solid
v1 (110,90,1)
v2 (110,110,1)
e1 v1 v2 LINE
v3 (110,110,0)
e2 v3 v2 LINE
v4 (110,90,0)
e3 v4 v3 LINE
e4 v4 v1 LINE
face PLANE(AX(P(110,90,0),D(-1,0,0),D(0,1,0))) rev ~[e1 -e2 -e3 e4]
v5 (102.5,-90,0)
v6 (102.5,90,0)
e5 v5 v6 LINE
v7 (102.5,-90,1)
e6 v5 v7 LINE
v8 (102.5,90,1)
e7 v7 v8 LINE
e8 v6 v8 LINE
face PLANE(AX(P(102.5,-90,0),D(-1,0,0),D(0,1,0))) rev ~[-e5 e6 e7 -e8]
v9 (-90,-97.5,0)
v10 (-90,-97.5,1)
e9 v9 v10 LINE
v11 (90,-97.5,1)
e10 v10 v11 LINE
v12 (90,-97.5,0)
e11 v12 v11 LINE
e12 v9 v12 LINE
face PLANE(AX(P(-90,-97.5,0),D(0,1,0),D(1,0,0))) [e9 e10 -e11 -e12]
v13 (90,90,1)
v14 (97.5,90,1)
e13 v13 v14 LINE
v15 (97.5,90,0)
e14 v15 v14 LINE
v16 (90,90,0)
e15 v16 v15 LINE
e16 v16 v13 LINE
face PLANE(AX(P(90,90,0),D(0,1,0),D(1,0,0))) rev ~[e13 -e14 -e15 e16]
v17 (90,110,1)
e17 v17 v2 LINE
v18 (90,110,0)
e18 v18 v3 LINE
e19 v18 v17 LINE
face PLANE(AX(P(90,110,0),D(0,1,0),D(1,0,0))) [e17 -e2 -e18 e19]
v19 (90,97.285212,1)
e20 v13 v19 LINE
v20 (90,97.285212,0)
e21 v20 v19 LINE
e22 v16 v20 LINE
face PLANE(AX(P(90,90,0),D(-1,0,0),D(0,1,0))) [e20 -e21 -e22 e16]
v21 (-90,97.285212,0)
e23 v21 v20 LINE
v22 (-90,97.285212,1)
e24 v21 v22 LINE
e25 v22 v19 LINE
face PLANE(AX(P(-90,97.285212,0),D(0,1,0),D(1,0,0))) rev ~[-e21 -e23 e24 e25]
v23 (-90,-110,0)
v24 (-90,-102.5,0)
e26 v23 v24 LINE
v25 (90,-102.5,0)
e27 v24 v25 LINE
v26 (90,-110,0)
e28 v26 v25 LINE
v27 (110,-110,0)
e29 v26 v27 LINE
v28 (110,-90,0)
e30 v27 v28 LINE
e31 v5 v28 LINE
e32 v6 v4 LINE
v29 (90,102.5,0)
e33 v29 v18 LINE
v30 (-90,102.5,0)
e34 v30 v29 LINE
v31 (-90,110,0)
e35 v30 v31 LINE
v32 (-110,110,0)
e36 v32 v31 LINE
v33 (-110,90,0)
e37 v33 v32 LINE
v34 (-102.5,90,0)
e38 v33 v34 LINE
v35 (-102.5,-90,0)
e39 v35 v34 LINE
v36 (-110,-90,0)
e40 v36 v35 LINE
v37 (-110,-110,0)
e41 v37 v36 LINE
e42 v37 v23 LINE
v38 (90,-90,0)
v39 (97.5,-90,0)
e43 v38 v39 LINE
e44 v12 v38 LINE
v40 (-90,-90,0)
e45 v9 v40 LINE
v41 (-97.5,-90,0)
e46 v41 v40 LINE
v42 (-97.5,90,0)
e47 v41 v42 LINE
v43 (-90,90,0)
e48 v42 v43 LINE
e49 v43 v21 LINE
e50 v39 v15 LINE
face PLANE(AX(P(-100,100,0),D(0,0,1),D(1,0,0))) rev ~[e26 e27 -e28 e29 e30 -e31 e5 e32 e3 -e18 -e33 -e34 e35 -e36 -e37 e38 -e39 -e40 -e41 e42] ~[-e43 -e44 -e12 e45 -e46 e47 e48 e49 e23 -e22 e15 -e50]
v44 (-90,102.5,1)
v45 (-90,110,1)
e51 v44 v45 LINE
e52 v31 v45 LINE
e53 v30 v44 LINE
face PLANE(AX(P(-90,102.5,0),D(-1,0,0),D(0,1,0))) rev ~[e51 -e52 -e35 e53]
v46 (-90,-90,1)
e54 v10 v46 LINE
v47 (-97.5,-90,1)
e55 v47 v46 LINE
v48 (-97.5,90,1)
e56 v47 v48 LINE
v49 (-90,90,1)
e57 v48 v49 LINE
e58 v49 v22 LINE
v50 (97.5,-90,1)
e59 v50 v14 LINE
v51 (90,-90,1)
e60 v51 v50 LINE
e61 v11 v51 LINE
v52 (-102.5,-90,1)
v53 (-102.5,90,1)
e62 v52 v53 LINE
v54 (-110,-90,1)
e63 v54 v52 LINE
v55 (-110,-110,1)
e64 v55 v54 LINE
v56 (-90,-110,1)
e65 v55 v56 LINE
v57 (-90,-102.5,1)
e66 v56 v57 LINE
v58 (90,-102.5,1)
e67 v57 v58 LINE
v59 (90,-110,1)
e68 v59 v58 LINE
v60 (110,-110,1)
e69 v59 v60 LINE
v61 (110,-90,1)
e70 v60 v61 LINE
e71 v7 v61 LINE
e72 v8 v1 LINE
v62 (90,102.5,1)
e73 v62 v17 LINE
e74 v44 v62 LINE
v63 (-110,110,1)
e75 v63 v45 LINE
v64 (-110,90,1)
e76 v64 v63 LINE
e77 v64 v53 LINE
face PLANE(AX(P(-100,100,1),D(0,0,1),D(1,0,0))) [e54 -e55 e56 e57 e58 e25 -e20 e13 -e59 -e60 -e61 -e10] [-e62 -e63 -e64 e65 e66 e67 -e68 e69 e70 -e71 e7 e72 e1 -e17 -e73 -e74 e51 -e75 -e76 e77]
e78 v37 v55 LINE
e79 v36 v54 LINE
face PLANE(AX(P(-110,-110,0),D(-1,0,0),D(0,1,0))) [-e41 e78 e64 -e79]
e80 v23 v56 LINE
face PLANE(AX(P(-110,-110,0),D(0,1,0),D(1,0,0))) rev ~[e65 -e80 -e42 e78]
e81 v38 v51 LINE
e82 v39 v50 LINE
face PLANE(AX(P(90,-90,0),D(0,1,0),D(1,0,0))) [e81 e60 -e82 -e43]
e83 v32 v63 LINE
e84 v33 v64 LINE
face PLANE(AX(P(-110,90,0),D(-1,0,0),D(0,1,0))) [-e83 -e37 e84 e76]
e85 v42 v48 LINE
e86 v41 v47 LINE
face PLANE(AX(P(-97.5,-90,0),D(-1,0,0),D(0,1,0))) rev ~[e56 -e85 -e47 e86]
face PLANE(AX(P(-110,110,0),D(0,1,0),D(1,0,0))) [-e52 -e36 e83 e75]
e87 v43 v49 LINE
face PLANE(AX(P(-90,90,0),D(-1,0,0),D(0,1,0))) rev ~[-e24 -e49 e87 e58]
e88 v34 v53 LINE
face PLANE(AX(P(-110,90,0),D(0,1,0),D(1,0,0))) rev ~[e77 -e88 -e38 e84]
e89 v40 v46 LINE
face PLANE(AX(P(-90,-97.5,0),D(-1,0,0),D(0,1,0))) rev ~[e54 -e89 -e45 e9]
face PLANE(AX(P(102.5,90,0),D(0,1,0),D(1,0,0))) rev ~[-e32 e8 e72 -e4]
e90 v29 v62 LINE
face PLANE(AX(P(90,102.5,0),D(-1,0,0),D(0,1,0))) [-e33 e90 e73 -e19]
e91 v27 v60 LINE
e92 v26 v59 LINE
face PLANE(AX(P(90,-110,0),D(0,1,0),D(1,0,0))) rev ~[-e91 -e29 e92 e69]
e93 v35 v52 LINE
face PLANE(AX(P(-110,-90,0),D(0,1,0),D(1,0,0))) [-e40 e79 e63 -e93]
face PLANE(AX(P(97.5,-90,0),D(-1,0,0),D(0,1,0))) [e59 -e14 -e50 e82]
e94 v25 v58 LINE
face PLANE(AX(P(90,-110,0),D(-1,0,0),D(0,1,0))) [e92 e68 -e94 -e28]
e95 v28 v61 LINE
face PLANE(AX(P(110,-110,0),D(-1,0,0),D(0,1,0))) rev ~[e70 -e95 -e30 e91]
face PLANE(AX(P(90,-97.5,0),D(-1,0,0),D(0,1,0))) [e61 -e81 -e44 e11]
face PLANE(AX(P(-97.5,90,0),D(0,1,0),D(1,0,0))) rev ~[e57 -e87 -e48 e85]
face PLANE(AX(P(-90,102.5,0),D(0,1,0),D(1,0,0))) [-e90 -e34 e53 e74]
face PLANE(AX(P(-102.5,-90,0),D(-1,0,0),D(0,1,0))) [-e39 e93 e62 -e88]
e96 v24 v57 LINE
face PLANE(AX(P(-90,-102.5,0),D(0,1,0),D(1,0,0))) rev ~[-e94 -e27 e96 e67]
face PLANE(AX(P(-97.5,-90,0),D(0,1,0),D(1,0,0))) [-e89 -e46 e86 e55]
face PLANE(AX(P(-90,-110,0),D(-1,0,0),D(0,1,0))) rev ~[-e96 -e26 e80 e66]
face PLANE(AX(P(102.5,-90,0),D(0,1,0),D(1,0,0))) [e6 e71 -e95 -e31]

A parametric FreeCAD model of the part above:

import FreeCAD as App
import Part
import Sketcher
from FreeCAD import Vector


def add_polygon(sketch, points):
    """Adds a closed chain of lines whose ends are joined by coincident constraints."""
    first, n = sketch.GeometryCount, len(points)
    for a, b in zip(points, points[1:] + points[:1]):
        sketch.addGeometry(Part.LineSegment(App.Vector(*a, 0), App.Vector(*b, 0)), False)
    for i in range(n):
        sketch.addConstraint(Sketcher.Constraint("Coincident", first + i, 2, first + (i + 1) % n, 1))

doc = App.newDocument("Part")
params = doc.addObject("Spreadsheet::Sheet", "Params")
for row, (alias, value) in enumerate([
    ("sketch1_width", "20 mm"),
    ("sketch1_width2", "180 mm"),
    ("sketch1_width3", "7.5 mm"),
    ("pad1_length", "1 mm"),
], start=1):
    params.set(f"A{row}", alias)
    params.set(f"B{row}", "=" + value)
    params.setAlias(f"B{row}", alias)

body = doc.addObject("PartDesign::Body", "Body")

# Sketch on XY plane
sketch1 = body.newObject("Sketcher::SketchObject", "Sketch")
sketch1.AttachmentSupport = (doc.getObject("XY_Plane"), [""])
sketch1.MapMode = "FlatFace"
add_polygon(sketch1, [(-110, 110), (-110, 90), (-102, 90), (-102, -90), (-110, -90), (-110, -110), (-90, -110), (-90, -102), (90, -102), (90, -110), (110, -110), (110, -90), (102, -90), (102, 90), (110, 90), (110, 110), (90, 110), (90, 102), (-90, 102), (-90, 110)])  # lines 0-19
add_polygon(sketch1, [(98, -90), (90, -90), (90, -98), (-90, -98), (-90, -90), (-98, -90), (-98, 90), (-90, 90), (-90, 97), (90, 97), (90, 90), (98, 90)])  # lines 20-31
sketch1.addConstraint([
    Sketcher.Constraint("Vertical", 0),
    Sketcher.Constraint("Horizontal", 1),
    Sketcher.Constraint("Vertical", 2),
    Sketcher.Constraint("Horizontal", 3),
    Sketcher.Constraint("Vertical", 4),
    Sketcher.Constraint("Horizontal", 5),
    Sketcher.Constraint("Vertical", 6),
    Sketcher.Constraint("Horizontal", 7),
    Sketcher.Constraint("Vertical", 8),
    Sketcher.Constraint("Horizontal", 9),
    Sketcher.Constraint("Vertical", 10),
    Sketcher.Constraint("Horizontal", 11),
    Sketcher.Constraint("Vertical", 12),
    Sketcher.Constraint("Horizontal", 13),
    Sketcher.Constraint("Vertical", 14),
    Sketcher.Constraint("Horizontal", 15),
    Sketcher.Constraint("Vertical", 16),
    Sketcher.Constraint("Horizontal", 17),
    Sketcher.Constraint("Vertical", 18),
    Sketcher.Constraint("Horizontal", 19),
    Sketcher.Constraint("Horizontal", 20),
    Sketcher.Constraint("Vertical", 21),
    Sketcher.Constraint("Horizontal", 22),
    Sketcher.Constraint("Vertical", 23),
    Sketcher.Constraint("Horizontal", 24),
    Sketcher.Constraint("Vertical", 25),
    Sketcher.Constraint("Horizontal", 26),
    Sketcher.Constraint("Vertical", 27),
    Sketcher.Constraint("Horizontal", 28),
    Sketcher.Constraint("Vertical", 29),
    Sketcher.Constraint("Horizontal", 30),
    Sketcher.Constraint("Vertical", 31),
    Sketcher.Constraint("Symmetric", 0, 2, 10, 2, -1, 1),
    Sketcher.Constraint("Symmetric", 2, 2, 12, 2, -1, 1),
    Sketcher.Constraint("Symmetric", 4, 2, 14, 2, -1, 1),
    Sketcher.Constraint("Symmetric", 6, 2, 16, 2, -1, 1),
    Sketcher.Constraint("Symmetric", 8, 2, 18, 2, -1, 1),
    Sketcher.Constraint("Symmetric", 20, 2, 26, 2, -1, 1),
    Sketcher.Constraint("Symmetric", 23, 2, 29, 2, -1, 1),
    Sketcher.Constraint("Symmetric", 5, 2, 8, 2, -2),
    Sketcher.Constraint("Symmetric", 3, 2, 10, 2, -2),
    Sketcher.Constraint("Symmetric", 20, 2, 23, 2, -2),
    Sketcher.Constraint("Horizontal", 11, 2, 20, 2),
    Sketcher.Constraint("Vertical", 16, 2, 20, 2),
    Sketcher.Constraint("Equal", 13, 20),
    Sketcher.Constraint("Equal", 20, 24),
    Sketcher.Constraint("Equal", 19, 0),
    Sketcher.Constraint("Equal", 28, 2),
    Sketcher.Constraint("Equal", 30, 6),
    Sketcher.Constraint("Equal", 18, 21),
    Sketcher.Constraint("DistanceX", 5, 1, 5, 2, 20.0),
    Sketcher.Constraint("DistanceX", 7, 1, 7, 2, 180.0),
    Sketcher.Constraint("DistanceX", 1, 1, 1, 2, 7.5),
    Sketcher.Constraint("DistanceY", 27, 1, 27, 2, 7.285212),
])
sketch1.setExpression("Constraints[82]", "Params.sketch1_width")
sketch1.setExpression("Constraints[83]", "Params.sketch1_width2")
sketch1.setExpression("Constraints[84]", "Params.sketch1_width3")
pad1 = body.newObject("PartDesign::Pad", "Pad")
pad1.Profile = sketch1
pad1.setExpression("Length", "Params.pad1_length")

doc.recompute()
